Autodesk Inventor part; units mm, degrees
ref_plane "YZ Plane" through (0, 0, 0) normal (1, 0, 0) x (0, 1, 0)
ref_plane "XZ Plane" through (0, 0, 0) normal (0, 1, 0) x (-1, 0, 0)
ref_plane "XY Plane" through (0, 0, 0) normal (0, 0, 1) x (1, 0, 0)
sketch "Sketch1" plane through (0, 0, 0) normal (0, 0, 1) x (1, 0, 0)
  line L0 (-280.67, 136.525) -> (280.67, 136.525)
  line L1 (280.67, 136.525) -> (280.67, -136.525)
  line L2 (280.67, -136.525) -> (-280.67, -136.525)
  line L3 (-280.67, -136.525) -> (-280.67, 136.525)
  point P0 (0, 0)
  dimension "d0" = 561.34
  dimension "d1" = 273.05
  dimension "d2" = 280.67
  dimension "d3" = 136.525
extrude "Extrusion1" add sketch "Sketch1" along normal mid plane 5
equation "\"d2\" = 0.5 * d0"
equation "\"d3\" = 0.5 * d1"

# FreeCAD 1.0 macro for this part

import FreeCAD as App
import Part
import Sketcher

V = App.Vector
Q = App.Units.Quantity


def add_polygon(sketch, points):
    """Adds a closed chain of lines whose ends are joined by coincident constraints."""
    first, n = sketch.GeometryCount, len(points)
    for a, b in zip(points, points[1:] + points[:1]):
        sketch.addGeometry(Part.LineSegment(App.Vector(*a, 0), App.Vector(*b, 0)), False)
    for i in range(n):
        sketch.addConstraint(Sketcher.Constraint("Coincident", first + i, 2, first + (i + 1) % n, 1))

doc = App.newDocument("Part")
body = doc.addObject("PartDesign::Body", "Body")

# Sketch on XY plane
sketch1 = body.newObject("Sketcher::SketchObject", "Sketch")
sketch1.AttachmentSupport = (doc.getObject("XY_Plane"), [""])
sketch1.MapMode = "FlatFace"
add_polygon(sketch1, [(281, 137), (-281, 137), (-281, -137), (281, -137)])  # lines 0-3
sketch1.addConstraint([
    Sketcher.Constraint("Horizontal", 0),
    Sketcher.Constraint("Vertical", 1),
    Sketcher.Constraint("Horizontal", 2),
    Sketcher.Constraint("Vertical", 3),
    Sketcher.Constraint("Symmetric", 0, 2, 2, 2, -1, 1),
    Sketcher.Constraint("DistanceX", 0, 2, 0, 1, Q("22.1 in")),
    Sketcher.Constraint("DistanceY", 1, 2, 1, 1, Q("10.75 in")),
])
pad1 = body.newObject("PartDesign::Pad", "Pad")
pad1.Profile = sketch1
pad1.Length = 5
pad1.Midplane = True

doc.recompute()
